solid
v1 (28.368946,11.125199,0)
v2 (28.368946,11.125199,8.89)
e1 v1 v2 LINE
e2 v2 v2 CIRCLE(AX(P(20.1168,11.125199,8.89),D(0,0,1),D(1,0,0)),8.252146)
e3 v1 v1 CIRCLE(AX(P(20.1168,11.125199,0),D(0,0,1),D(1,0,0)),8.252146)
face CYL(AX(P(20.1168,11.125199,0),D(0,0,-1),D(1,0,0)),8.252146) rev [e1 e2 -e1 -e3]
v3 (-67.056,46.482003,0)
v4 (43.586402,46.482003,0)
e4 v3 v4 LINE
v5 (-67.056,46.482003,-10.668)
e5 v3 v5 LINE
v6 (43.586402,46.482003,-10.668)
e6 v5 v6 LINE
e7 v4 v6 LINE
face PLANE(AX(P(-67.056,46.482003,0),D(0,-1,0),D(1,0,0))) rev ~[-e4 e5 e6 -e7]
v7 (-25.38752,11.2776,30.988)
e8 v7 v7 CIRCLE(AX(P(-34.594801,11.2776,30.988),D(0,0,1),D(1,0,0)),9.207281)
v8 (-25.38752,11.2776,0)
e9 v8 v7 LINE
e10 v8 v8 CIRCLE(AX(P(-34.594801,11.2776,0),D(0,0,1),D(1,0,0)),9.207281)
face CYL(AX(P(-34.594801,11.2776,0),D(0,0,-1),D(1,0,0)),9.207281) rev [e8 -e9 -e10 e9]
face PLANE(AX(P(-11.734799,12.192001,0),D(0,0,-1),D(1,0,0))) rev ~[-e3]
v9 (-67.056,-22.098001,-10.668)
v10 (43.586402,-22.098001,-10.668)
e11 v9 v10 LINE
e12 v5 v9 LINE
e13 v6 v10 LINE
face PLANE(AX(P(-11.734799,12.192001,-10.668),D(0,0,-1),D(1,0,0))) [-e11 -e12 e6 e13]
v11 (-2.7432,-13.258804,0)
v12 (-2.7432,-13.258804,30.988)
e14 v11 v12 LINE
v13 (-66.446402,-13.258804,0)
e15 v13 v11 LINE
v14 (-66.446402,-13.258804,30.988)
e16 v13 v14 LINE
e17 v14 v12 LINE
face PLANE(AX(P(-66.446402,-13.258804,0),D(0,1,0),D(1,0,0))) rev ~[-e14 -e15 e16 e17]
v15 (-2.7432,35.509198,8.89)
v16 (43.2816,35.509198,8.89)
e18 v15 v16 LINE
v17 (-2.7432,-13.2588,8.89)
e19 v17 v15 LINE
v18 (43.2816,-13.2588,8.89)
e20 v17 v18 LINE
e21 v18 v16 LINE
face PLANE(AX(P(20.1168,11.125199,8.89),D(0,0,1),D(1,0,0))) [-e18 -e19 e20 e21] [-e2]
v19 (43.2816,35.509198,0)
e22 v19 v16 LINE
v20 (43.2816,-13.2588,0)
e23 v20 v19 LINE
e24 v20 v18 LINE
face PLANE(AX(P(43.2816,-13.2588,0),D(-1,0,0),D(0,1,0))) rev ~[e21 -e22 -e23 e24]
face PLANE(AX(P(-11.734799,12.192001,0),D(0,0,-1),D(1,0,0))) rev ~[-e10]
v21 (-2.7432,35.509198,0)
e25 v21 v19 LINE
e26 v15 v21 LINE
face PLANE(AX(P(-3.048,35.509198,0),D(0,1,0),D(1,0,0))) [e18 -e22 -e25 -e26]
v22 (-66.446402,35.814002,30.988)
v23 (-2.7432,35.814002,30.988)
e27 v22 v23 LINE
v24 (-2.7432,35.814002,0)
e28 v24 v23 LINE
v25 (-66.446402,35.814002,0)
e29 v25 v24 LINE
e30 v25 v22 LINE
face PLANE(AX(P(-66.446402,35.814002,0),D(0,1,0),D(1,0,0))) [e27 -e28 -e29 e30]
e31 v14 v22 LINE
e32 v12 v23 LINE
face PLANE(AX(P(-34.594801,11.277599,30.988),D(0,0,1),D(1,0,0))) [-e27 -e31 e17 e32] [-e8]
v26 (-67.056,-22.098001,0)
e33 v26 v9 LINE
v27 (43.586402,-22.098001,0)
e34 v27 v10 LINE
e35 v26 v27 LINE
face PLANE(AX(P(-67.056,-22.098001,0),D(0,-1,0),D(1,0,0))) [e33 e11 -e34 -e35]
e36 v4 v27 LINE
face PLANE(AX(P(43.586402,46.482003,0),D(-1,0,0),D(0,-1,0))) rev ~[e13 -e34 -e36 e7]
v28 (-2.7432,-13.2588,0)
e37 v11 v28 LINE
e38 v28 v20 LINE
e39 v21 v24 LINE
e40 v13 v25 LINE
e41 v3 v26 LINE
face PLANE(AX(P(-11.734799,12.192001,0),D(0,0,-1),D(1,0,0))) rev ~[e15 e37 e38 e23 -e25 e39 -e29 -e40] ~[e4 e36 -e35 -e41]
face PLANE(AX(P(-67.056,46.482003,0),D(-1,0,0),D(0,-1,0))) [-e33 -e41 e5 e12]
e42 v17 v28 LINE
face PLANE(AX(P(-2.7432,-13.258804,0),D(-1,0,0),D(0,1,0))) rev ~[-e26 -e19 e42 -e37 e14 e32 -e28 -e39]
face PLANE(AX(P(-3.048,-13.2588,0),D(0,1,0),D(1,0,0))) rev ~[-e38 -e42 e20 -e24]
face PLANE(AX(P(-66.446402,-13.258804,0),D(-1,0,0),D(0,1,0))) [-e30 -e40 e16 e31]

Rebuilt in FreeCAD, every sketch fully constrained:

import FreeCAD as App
import Part
import Sketcher
from FreeCAD import Vector
Q = App.Units.Quantity


def add_polygon(sketch, points):
    """Adds a closed chain of lines whose ends are joined by coincident constraints."""
    first, n = sketch.GeometryCount, len(points)
    for a, b in zip(points, points[1:] + points[:1]):
        sketch.addGeometry(Part.LineSegment(App.Vector(*a, 0), App.Vector(*b, 0)), False)
    for i in range(n):
        sketch.addConstraint(Sketcher.Constraint("Coincident", first + i, 2, first + (i + 1) % n, 1))

doc = App.newDocument("Part")
body = doc.addObject("PartDesign::Body", "Body")

# Sketch on XY plane
sketch1 = body.newObject("Sketcher::SketchObject", "Sketch")
sketch1.AttachmentSupport = (doc.getObject("XY_Plane"), [""])
sketch1.MapMode = "FlatFace"
add_polygon(sketch1, [(-66, 36), (-66, -13), (-3, -13), (-3, 36)])  # lines 0-3
sketch1.addGeometry(Part.Circle(Vector(-35, 11, 0), Vector(0, 0, 1), 9), False)  # 4
sketch1.addConstraint([
    Sketcher.Constraint("Vertical", 0),
    Sketcher.Constraint("Horizontal", 1),
    Sketcher.Constraint("Vertical", 2),
    Sketcher.Constraint("Horizontal", 3),
    Sketcher.Constraint("DistanceX", 1, 1, 1, 2, Q("2.5080001 in")),
    Sketcher.Constraint("DistanceY", 0, 2, 0, 1, Q("1.9320002 in")),
    Sketcher.Constraint("DistanceY", -1, 1, 2, 2, Q("1.4100001 in")),
    Sketcher.Constraint("Diameter", 4, 18.414562),
    Sketcher.Constraint("DistanceX", 4, 3, -1, 1, Q("1.362 in")),
    Sketcher.Constraint("DistanceY", -1, 1, 4, 3, Q("0.444 in")),
    Sketcher.Constraint("DistanceX", 0, 2, -1, 1, Q("2.6160001 in")),
])
pad1 = body.newObject("PartDesign::Pad", "Pad")
pad1.Profile = sketch1
pad1.Length = Q("1.22 in")

# Sketch on XY plane
sketch2 = body.newObject("Sketcher::SketchObject", "Sketch001")
sketch2.AttachmentSupport = (doc.getObject("XY_Plane"), [""])
sketch2.MapMode = "FlatFace"
add_polygon(sketch2, [(-3, 36), (-3, -13), (43, -13), (43, 36)])  # lines 0-3
sketch2.addGeometry(Part.Circle(Vector(20, 11, 0), Vector(0, 0, 1), 8), False)  # 4
sketch2.addConstraint([
    Sketcher.Constraint("Vertical", 0),
    Sketcher.Constraint("Horizontal", 1),
    Sketcher.Constraint("Vertical", 2),
    Sketcher.Constraint("Horizontal", 3),
    Sketcher.Constraint("DistanceY", 0, 2, 0, 1, Q("1.92 in")),
    Sketcher.Constraint("DistanceX", 1, 1, 1, 2, Q("1.824 in")),
    Sketcher.Constraint("DistanceX", 0, 2, -1, 1, Q("0.12 in")),
    Sketcher.Constraint("DistanceY", 0, 2, 4, 3, Q("0.96 in")),
    Sketcher.Constraint("Diameter", 4, 16.504292),
    Sketcher.Constraint("DistanceX", -1, 1, 4, 3, Q("0.792 in")),
    Sketcher.Constraint("DistanceY", -1, 1, 4, 3, Q("0.438 in")),
])
pad2 = body.newObject("PartDesign::Pad", "Pad001")
pad2.Profile = sketch2
pad2.Length = Q("0.35 in")

# Sketch on XY plane
sketch3 = body.newObject("Sketcher::SketchObject", "Sketch002")
sketch3.AttachmentSupport = (doc.getObject("XY_Plane"), [""])
sketch3.MapMode = "FlatFace"
add_polygon(sketch3, [(-67, -22), (-67, 46), (44, 46), (44, -22)])  # lines 0-3
sketch3.addConstraint([
    Sketcher.Constraint("Vertical", 0),
    Sketcher.Constraint("Horizontal", 1),
    Sketcher.Constraint("Vertical", 2),
    Sketcher.Constraint("Horizontal", 3),
    Sketcher.Constraint("DistanceY", 0, 1, 0, 2, Q("2.7000002 in")),
    Sketcher.Constraint("DistanceX", 1, 1, 1, 2, Q("4.3560001 in")),
    Sketcher.Constraint("DistanceX", 0, 2, -1, 1, Q("2.64 in")),
    Sketcher.Constraint("DistanceY", -1, 1, 0, 2, Q("1.8300001 in")),
])
pad3 = body.newObject("PartDesign::Pad", "Pad002")
pad3.Profile = sketch3
pad3.Length = Q("0.42 in")
pad3.Reversed = True

doc.recompute()
